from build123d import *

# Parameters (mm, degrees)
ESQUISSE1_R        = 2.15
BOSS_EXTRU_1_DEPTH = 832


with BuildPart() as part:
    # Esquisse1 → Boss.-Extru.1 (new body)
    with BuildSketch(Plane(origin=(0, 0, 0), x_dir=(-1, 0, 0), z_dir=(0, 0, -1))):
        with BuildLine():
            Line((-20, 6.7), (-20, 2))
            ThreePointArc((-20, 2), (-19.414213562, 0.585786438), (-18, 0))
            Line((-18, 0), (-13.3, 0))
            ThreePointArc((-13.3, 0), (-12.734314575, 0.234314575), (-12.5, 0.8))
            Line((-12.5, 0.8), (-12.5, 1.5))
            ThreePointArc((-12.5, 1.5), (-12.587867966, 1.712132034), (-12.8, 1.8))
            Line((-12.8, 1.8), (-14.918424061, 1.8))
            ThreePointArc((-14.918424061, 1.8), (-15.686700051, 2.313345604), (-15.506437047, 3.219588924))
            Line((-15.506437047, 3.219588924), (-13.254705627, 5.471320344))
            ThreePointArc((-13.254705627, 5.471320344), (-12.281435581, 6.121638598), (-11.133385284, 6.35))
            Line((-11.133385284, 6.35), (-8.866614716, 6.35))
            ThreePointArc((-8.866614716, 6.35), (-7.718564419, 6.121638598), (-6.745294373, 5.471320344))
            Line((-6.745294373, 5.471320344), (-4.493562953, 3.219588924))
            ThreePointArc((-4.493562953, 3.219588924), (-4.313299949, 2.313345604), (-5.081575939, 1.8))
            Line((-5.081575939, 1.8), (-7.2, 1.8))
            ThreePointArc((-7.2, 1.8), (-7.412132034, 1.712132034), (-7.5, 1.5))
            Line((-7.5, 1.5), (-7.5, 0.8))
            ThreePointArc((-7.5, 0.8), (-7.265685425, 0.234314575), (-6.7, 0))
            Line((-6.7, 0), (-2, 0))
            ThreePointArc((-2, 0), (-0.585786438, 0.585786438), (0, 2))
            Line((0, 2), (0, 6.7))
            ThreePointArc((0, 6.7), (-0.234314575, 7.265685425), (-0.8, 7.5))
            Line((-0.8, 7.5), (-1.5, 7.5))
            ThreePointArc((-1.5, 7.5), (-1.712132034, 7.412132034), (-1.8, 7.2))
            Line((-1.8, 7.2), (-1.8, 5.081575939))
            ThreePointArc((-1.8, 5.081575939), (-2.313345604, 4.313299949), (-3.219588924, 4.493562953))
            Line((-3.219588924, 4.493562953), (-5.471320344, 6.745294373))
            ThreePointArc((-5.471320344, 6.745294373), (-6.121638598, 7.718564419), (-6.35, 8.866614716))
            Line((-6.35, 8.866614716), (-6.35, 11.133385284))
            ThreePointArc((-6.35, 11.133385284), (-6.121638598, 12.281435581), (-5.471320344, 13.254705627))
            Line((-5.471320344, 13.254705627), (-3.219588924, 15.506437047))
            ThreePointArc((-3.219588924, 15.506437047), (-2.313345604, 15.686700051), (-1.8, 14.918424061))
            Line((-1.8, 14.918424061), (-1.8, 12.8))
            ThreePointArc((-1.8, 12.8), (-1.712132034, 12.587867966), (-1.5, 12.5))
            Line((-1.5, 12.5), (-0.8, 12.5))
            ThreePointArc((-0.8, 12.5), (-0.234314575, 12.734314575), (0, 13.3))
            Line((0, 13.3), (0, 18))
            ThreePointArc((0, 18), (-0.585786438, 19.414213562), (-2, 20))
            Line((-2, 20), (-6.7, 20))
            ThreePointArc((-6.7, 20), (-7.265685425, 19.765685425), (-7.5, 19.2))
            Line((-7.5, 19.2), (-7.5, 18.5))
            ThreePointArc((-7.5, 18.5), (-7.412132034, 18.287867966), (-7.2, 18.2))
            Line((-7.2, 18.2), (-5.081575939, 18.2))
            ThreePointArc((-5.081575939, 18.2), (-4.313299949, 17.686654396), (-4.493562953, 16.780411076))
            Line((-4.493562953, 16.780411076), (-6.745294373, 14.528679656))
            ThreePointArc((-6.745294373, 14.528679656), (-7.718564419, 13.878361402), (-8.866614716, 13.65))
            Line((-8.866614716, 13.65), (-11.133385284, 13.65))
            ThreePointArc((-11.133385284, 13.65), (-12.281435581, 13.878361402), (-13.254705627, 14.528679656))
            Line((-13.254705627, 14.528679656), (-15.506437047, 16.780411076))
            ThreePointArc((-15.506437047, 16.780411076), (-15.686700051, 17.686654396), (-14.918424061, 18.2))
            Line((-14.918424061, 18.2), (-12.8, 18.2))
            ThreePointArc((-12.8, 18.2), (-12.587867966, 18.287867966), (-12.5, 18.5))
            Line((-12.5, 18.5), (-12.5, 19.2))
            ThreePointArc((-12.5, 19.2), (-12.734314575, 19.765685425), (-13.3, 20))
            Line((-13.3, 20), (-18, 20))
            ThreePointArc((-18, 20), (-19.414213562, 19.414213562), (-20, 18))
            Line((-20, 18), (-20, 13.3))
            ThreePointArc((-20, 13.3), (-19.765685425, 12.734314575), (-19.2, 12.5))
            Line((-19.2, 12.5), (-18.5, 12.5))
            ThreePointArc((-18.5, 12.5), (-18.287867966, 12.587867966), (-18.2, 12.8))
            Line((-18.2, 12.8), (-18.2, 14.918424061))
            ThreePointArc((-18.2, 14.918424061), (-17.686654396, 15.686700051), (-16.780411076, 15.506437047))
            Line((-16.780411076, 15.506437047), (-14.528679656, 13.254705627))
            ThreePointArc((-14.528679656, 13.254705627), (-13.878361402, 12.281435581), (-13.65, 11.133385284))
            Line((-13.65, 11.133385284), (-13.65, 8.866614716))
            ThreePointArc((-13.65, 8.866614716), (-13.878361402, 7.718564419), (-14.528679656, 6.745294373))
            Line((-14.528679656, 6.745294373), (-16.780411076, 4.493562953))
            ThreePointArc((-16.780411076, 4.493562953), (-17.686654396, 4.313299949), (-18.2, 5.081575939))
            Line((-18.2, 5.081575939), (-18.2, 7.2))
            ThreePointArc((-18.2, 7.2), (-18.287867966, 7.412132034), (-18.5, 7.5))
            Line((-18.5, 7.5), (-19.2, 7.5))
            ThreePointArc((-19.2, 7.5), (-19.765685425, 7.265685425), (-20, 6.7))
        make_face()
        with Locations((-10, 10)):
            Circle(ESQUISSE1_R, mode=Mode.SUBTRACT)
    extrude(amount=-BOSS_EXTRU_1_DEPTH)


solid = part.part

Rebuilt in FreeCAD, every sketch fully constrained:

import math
import FreeCAD as App
import Part
import Sketcher

V = App.Vector
Q = App.Units.Quantity

doc = App.newDocument("Part")
body = doc.addObject("PartDesign::Body", "Body")

sketch1 = body.newObject("Sketcher::SketchObject", "Sketch")
sketch1.AttachmentSupport = (doc.getObject("XY_Plane"), [""])
sketch1.MapMode = "FlatFace"
sketch1.addGeometry(Part.LineSegment(V(20, 6.7, 0), V(20, 2, 0)), False)
sketch1.addGeometry(Part.ArcOfCircle(Part.Circle(V(18, 2, 0), V(0, 0, 1), 2), math.radians(-90), math.radians(0)), False)
sketch1.addGeometry(Part.LineSegment(V(18, 0, 0), V(13.3, 0, 0)), False)
sketch1.addGeometry(Part.ArcOfCircle(Part.Circle(V(13.3, 0.8, 0), V(0, 0, 1), 0.8), math.radians(180), math.radians(270)), False)
sketch1.addGeometry(Part.LineSegment(V(12.5, 0.8, 0), V(12.5, 1.5, 0)), False)
sketch1.addGeometry(Part.ArcOfCircle(Part.Circle(V(12.8, 1.5, 0), V(0, 0, 1), 0.3), math.radians(90), math.radians(180)), False)
sketch1.addGeometry(Part.LineSegment(V(12.8, 1.8, 0), V(14.92, 1.8, 0)), False)
sketch1.addGeometry(Part.ArcOfCircle(Part.Circle(V(14.92, 2.63, 0), V(0, 0, 1), 0.83), math.radians(-90), math.radians(45)), False)
sketch1.addGeometry(Part.LineSegment(V(15.51, 3.22, 0), V(13.25, 5.47, 0)), False)
sketch1.addGeometry(Part.ArcOfCircle(Part.Circle(V(11.13, 3.35, 0), V(0, 0, 1), 3), math.radians(45), math.radians(90)), False)
sketch1.addGeometry(Part.LineSegment(V(11.13, 6.35, 0), V(8.87, 6.35, 0)), False)
sketch1.addGeometry(Part.ArcOfCircle(Part.Circle(V(8.87, 3.35, 0), V(0, 0, 1), 3), math.radians(90), math.radians(135)), False)
sketch1.addGeometry(Part.LineSegment(V(6.75, 5.47, 0), V(4.49, 3.22, 0)), False)
sketch1.addGeometry(Part.ArcOfCircle(Part.Circle(V(5.08, 2.63, 0), V(0, 0, 1), 0.83), math.radians(135), math.radians(270)), False)
sketch1.addGeometry(Part.LineSegment(V(5.08, 1.8, 0), V(7.2, 1.8, 0)), False)
sketch1.addGeometry(Part.ArcOfCircle(Part.Circle(V(7.2, 1.5, 0), V(0, 0, 1), 0.3), math.radians(0), math.radians(90)), False)
sketch1.addGeometry(Part.LineSegment(V(7.5, 1.5, 0), V(7.5, 0.8, 0)), False)
sketch1.addGeometry(Part.ArcOfCircle(Part.Circle(V(6.7, 0.8, 0), V(0, 0, 1), 0.8), math.radians(-90), math.radians(0)), False)
sketch1.addGeometry(Part.LineSegment(V(6.7, 0, 0), V(2, 0, 0)), False)
sketch1.addGeometry(Part.ArcOfCircle(Part.Circle(V(2, 2, 0), V(0, 0, 1), 2), math.radians(-180), math.radians(-90)), False)
sketch1.addGeometry(Part.LineSegment(V(0, 2, 0), V(0, 6.7, 0)), False)
sketch1.addGeometry(Part.ArcOfCircle(Part.Circle(V(0.8, 6.7, 0), V(0, 0, 1), 0.8), math.radians(90), math.radians(180)), False)
sketch1.addGeometry(Part.LineSegment(V(0.8, 7.5, 0), V(1.5, 7.5, 0)), False)
sketch1.addGeometry(Part.ArcOfCircle(Part.Circle(V(1.5, 7.2, 0), V(0, 0, 1), 0.3), math.radians(0), math.radians(90)), False)
sketch1.addGeometry(Part.LineSegment(V(1.8, 7.2, 0), V(1.8, 5.08, 0)), False)
sketch1.addGeometry(Part.ArcOfCircle(Part.Circle(V(2.63, 5.08, 0), V(0, 0, 1), 0.83), math.radians(180), math.radians(315)), False)
sketch1.addGeometry(Part.LineSegment(V(3.22, 4.49, 0), V(5.47, 6.75, 0)), False)
sketch1.addGeometry(Part.ArcOfCircle(Part.Circle(V(3.35, 8.87, 0), V(0, 0, 1), 3), math.radians(-45), math.radians(0)), False)
sketch1.addGeometry(Part.LineSegment(V(6.35, 8.87, 0), V(6.35, 11.13, 0)), False)
sketch1.addGeometry(Part.ArcOfCircle(Part.Circle(V(3.35, 11.13, 0), V(0, 0, 1), 3), math.radians(0), math.radians(45)), False)
sketch1.addGeometry(Part.LineSegment(V(5.47, 13.25, 0), V(3.22, 15.51, 0)), False)
sketch1.addGeometry(Part.ArcOfCircle(Part.Circle(V(2.63, 14.92, 0), V(0, 0, 1), 0.83), math.radians(45), math.radians(180)), False)
sketch1.addGeometry(Part.LineSegment(V(1.8, 14.92, 0), V(1.8, 12.8, 0)), False)
sketch1.addGeometry(Part.ArcOfCircle(Part.Circle(V(1.5, 12.8, 0), V(0, 0, 1), 0.3), math.radians(-90), math.radians(0)), False)
sketch1.addGeometry(Part.LineSegment(V(1.5, 12.5, 0), V(0.8, 12.5, 0)), False)
sketch1.addGeometry(Part.ArcOfCircle(Part.Circle(V(0.8, 13.3, 0), V(0, 0, 1), 0.8), math.radians(180), math.radians(270)), False)
sketch1.addGeometry(Part.LineSegment(V(0, 13.3, 0), V(0, 18, 0)), False)
sketch1.addGeometry(Part.ArcOfCircle(Part.Circle(V(2, 18, 0), V(0, 0, 1), 2), math.radians(90), math.radians(180)), False)
sketch1.addGeometry(Part.LineSegment(V(2, 20, 0), V(6.7, 20, 0)), False)
sketch1.addGeometry(Part.ArcOfCircle(Part.Circle(V(6.7, 19.2, 0), V(0, 0, 1), 0.8), math.radians(0), math.radians(90)), False)
sketch1.addGeometry(Part.LineSegment(V(7.5, 19.2, 0), V(7.5, 18.5, 0)), False)
sketch1.addGeometry(Part.ArcOfCircle(Part.Circle(V(7.2, 18.5, 0), V(0, 0, 1), 0.3), math.radians(-90), math.radians(0)), False)
sketch1.addGeometry(Part.LineSegment(V(7.2, 18.2, 0), V(5.08, 18.2, 0)), False)
sketch1.addGeometry(Part.ArcOfCircle(Part.Circle(V(5.08, 17.37, 0), V(0, 0, 1), 0.83), math.radians(90), math.radians(225)), False)
sketch1.addGeometry(Part.LineSegment(V(4.49, 16.78, 0), V(6.75, 14.53, 0)), False)
sketch1.addGeometry(Part.ArcOfCircle(Part.Circle(V(8.87, 16.65, 0), V(0, 0, 1), 3), math.radians(-135), math.radians(-90)), False)
sketch1.addGeometry(Part.LineSegment(V(8.87, 13.65, 0), V(11.13, 13.65, 0)), False)
sketch1.addGeometry(Part.ArcOfCircle(Part.Circle(V(11.13, 16.65, 0), V(0, 0, 1), 3), math.radians(-90), math.radians(-45)), False)
sketch1.addGeometry(Part.LineSegment(V(13.25, 14.53, 0), V(15.51, 16.78, 0)), False)
sketch1.addGeometry(Part.ArcOfCircle(Part.Circle(V(14.92, 17.37, 0), V(0, 0, 1), 0.83), math.radians(-45), math.radians(90)), False)
sketch1.addGeometry(Part.LineSegment(V(14.92, 18.2, 0), V(12.8, 18.2, 0)), False)
sketch1.addGeometry(Part.ArcOfCircle(Part.Circle(V(12.8, 18.5, 0), V(0, 0, 1), 0.3), math.radians(-180), math.radians(-90)), False)
sketch1.addGeometry(Part.LineSegment(V(12.5, 18.5, 0), V(12.5, 19.2, 0)), False)
sketch1.addGeometry(Part.ArcOfCircle(Part.Circle(V(13.3, 19.2, 0), V(0, 0, 1), 0.8), math.radians(90), math.radians(180)), False)
sketch1.addGeometry(Part.LineSegment(V(13.3, 20, 0), V(18, 20, 0)), False)
sketch1.addGeometry(Part.ArcOfCircle(Part.Circle(V(18, 18, 0), V(0, 0, 1), 2), math.radians(0), math.radians(90)), False)
sketch1.addGeometry(Part.LineSegment(V(20, 18, 0), V(20, 13.3, 0)), False)
sketch1.addGeometry(Part.ArcOfCircle(Part.Circle(V(19.2, 13.3, 0), V(0, 0, 1), 0.8), math.radians(-90), math.radians(0)), False)
sketch1.addGeometry(Part.LineSegment(V(19.2, 12.5, 0), V(18.5, 12.5, 0)), False)
sketch1.addGeometry(Part.ArcOfCircle(Part.Circle(V(18.5, 12.8, 0), V(0, 0, 1), 0.3), math.radians(-180), math.radians(-90)), False)
sketch1.addGeometry(Part.LineSegment(V(18.2, 12.8, 0), V(18.2, 14.92, 0)), False)
sketch1.addGeometry(Part.ArcOfCircle(Part.Circle(V(17.37, 14.92, 0), V(0, 0, 1), 0.83), math.radians(0), math.radians(135)), False)
sketch1.addGeometry(Part.LineSegment(V(16.78, 15.51, 0), V(14.53, 13.25, 0)), False)
sketch1.addGeometry(Part.ArcOfCircle(Part.Circle(V(16.65, 11.13, 0), V(0, 0, 1), 3), math.radians(135), math.radians(180)), False)
sketch1.addGeometry(Part.LineSegment(V(13.65, 11.13, 0), V(13.65, 8.87, 0)), False)
sketch1.addGeometry(Part.ArcOfCircle(Part.Circle(V(16.65, 8.87, 0), V(0, 0, 1), 3), math.radians(180), math.radians(225)), False)
sketch1.addGeometry(Part.LineSegment(V(14.53, 6.75, 0), V(16.78, 4.49, 0)), False)
sketch1.addGeometry(Part.ArcOfCircle(Part.Circle(V(17.37, 5.08, 0), V(0, 0, 1), 0.83), math.radians(-135), math.radians(0)), False)
sketch1.addGeometry(Part.LineSegment(V(18.2, 5.08, 0), V(18.2, 7.2, 0)), False)
sketch1.addGeometry(Part.ArcOfCircle(Part.Circle(V(18.5, 7.2, 0), V(0, 0, 1), 0.3), math.radians(90), math.radians(180)), False)
sketch1.addGeometry(Part.LineSegment(V(18.5, 7.5, 0), V(19.2, 7.5, 0)), False)
sketch1.addGeometry(Part.ArcOfCircle(Part.Circle(V(19.2, 6.7, 0), V(0, 0, 1), 0.8), math.radians(0), math.radians(90)), False)
sketch1.addGeometry(Part.Circle(V(10, 10, 0), V(0, 0, 1), 2.15), False)
sketch1.addConstraint(Sketcher.Constraint("Tangent", 0, 2, 1, 2))
sketch1.addConstraint(Sketcher.Constraint("Tangent", 1, 1, 2, 1))
sketch1.addConstraint(Sketcher.Constraint("Tangent", 2, 2, 3, 2))
sketch1.addConstraint(Sketcher.Constraint("Tangent", 3, 1, 4, 1))
sketch1.addConstraint(Sketcher.Constraint("Tangent", 4, 2, 5, 2))
sketch1.addConstraint(Sketcher.Constraint("Tangent", 5, 1, 6, 1))
sketch1.addConstraint(Sketcher.Constraint("Tangent", 6, 2, 7, 1))
sketch1.addConstraint(Sketcher.Constraint("Tangent", 7, 2, 8, 1))
sketch1.addConstraint(Sketcher.Constraint("Tangent", 8, 2, 9, 1))
sketch1.addConstraint(Sketcher.Constraint("Tangent", 9, 2, 10, 1))
sketch1.addConstraint(Sketcher.Constraint("Tangent", 10, 2, 11, 1))
sketch1.addConstraint(Sketcher.Constraint("Tangent", 11, 2, 12, 1))
sketch1.addConstraint(Sketcher.Constraint("Tangent", 12, 2, 13, 1))
sketch1.addConstraint(Sketcher.Constraint("Tangent", 13, 2, 14, 1))
sketch1.addConstraint(Sketcher.Constraint("Tangent", 14, 2, 15, 2))
sketch1.addConstraint(Sketcher.Constraint("Tangent", 15, 1, 16, 1))
sketch1.addConstraint(Sketcher.Constraint("Tangent", 16, 2, 17, 2))
sketch1.addConstraint(Sketcher.Constraint("Tangent", 17, 1, 18, 1))
sketch1.addConstraint(Sketcher.Constraint("Tangent", 18, 2, 19, 2))
sketch1.addConstraint(Sketcher.Constraint("Tangent", 19, 1, 20, 1))
sketch1.addConstraint(Sketcher.Constraint("Tangent", 20, 2, 21, 2))
sketch1.addConstraint(Sketcher.Constraint("Tangent", 21, 1, 22, 1))
sketch1.addConstraint(Sketcher.Constraint("Tangent", 22, 2, 23, 2))
sketch1.addConstraint(Sketcher.Constraint("Tangent", 23, 1, 24, 1))
sketch1.addConstraint(Sketcher.Constraint("Tangent", 24, 2, 25, 1))
sketch1.addConstraint(Sketcher.Constraint("Tangent", 25, 2, 26, 1))
sketch1.addConstraint(Sketcher.Constraint("Tangent", 26, 2, 27, 1))
sketch1.addConstraint(Sketcher.Constraint("Tangent", 27, 2, 28, 1))
sketch1.addConstraint(Sketcher.Constraint("Tangent", 28, 2, 29, 1))
sketch1.addConstraint(Sketcher.Constraint("Tangent", 29, 2, 30, 1))
sketch1.addConstraint(Sketcher.Constraint("Tangent", 30, 2, 31, 1))
sketch1.addConstraint(Sketcher.Constraint("Tangent", 31, 2, 32, 1))
sketch1.addConstraint(Sketcher.Constraint("Tangent", 32, 2, 33, 2))
sketch1.addConstraint(Sketcher.Constraint("Tangent", 33, 1, 34, 1))
sketch1.addConstraint(Sketcher.Constraint("Tangent", 34, 2, 35, 2))
sketch1.addConstraint(Sketcher.Constraint("Tangent", 35, 1, 36, 1))
sketch1.addConstraint(Sketcher.Constraint("Tangent", 36, 2, 37, 2))
sketch1.addConstraint(Sketcher.Constraint("Tangent", 37, 1, 38, 1))
sketch1.addConstraint(Sketcher.Constraint("Tangent", 38, 2, 39, 2))
sketch1.addConstraint(Sketcher.Constraint("Tangent", 39, 1, 40, 1))
sketch1.addConstraint(Sketcher.Constraint("Tangent", 40, 2, 41, 2))
sketch1.addConstraint(Sketcher.Constraint("Tangent", 41, 1, 42, 1))
sketch1.addConstraint(Sketcher.Constraint("Tangent", 42, 2, 43, 1))
sketch1.addConstraint(Sketcher.Constraint("Tangent", 43, 2, 44, 1))
sketch1.addConstraint(Sketcher.Constraint("Tangent", 44, 2, 45, 1))
sketch1.addConstraint(Sketcher.Constraint("Tangent", 45, 2, 46, 1))
sketch1.addConstraint(Sketcher.Constraint("Tangent", 46, 2, 47, 1))
sketch1.addConstraint(Sketcher.Constraint("Tangent", 47, 2, 48, 1))
sketch1.addConstraint(Sketcher.Constraint("Tangent", 48, 2, 49, 1))
sketch1.addConstraint(Sketcher.Constraint("Tangent", 49, 2, 50, 1))
sketch1.addConstraint(Sketcher.Constraint("Tangent", 50, 2, 51, 2))
sketch1.addConstraint(Sketcher.Constraint("Tangent", 51, 1, 52, 1))
sketch1.addConstraint(Sketcher.Constraint("Tangent", 52, 2, 53, 2))
sketch1.addConstraint(Sketcher.Constraint("Tangent", 53, 1, 54, 1))
sketch1.addConstraint(Sketcher.Constraint("Tangent", 54, 2, 55, 2))
sketch1.addConstraint(Sketcher.Constraint("Tangent", 55, 1, 56, 1))
sketch1.addConstraint(Sketcher.Constraint("Tangent", 56, 2, 57, 2))
sketch1.addConstraint(Sketcher.Constraint("Tangent", 57, 1, 58, 1))
sketch1.addConstraint(Sketcher.Constraint("Tangent", 58, 2, 59, 2))
sketch1.addConstraint(Sketcher.Constraint("Tangent", 59, 1, 60, 1))
sketch1.addConstraint(Sketcher.Constraint("Tangent", 60, 2, 61, 1))
sketch1.addConstraint(Sketcher.Constraint("Tangent", 61, 2, 62, 1))
sketch1.addConstraint(Sketcher.Constraint("Tangent", 62, 2, 63, 1))
sketch1.addConstraint(Sketcher.Constraint("Tangent", 63, 2, 64, 1))
sketch1.addConstraint(Sketcher.Constraint("Tangent", 64, 2, 65, 1))
sketch1.addConstraint(Sketcher.Constraint("Tangent", 65, 2, 66, 1))
sketch1.addConstraint(Sketcher.Constraint("Tangent", 66, 2, 67, 1))
sketch1.addConstraint(Sketcher.Constraint("Tangent", 67, 2, 68, 1))
sketch1.addConstraint(Sketcher.Constraint("Tangent", 68, 2, 69, 2))
sketch1.addConstraint(Sketcher.Constraint("Tangent", 69, 1, 70, 1))
sketch1.addConstraint(Sketcher.Constraint("Tangent", 70, 2, 71, 2))
sketch1.addConstraint(Sketcher.Constraint("Tangent", 71, 1, 0, 1))
sketch1.addConstraint(Sketcher.Constraint("Vertical", 0))
sketch1.addConstraint(Sketcher.Constraint("Horizontal", 2))
sketch1.addConstraint(Sketcher.Constraint("Vertical", 4))
sketch1.addConstraint(Sketcher.Constraint("Horizontal", 6))
sketch1.addConstraint(Sketcher.Constraint("Horizontal", 10))
sketch1.addConstraint(Sketcher.Constraint("Horizontal", 14))
sketch1.addConstraint(Sketcher.Constraint("Vertical", 16))
sketch1.addConstraint(Sketcher.Constraint("Horizontal", 18))
sketch1.addConstraint(Sketcher.Constraint("Vertical", 20))
sketch1.addConstraint(Sketcher.Constraint("Horizontal", 22))
sketch1.addConstraint(Sketcher.Constraint("Vertical", 24))
sketch1.addConstraint(Sketcher.Constraint("Vertical", 28))
sketch1.addConstraint(Sketcher.Constraint("Vertical", 32))
sketch1.addConstraint(Sketcher.Constraint("Horizontal", 34))
sketch1.addConstraint(Sketcher.Constraint("Vertical", 36))
sketch1.addConstraint(Sketcher.Constraint("Horizontal", 38))
sketch1.addConstraint(Sketcher.Constraint("Vertical", 40))
sketch1.addConstraint(Sketcher.Constraint("Horizontal", 42))
sketch1.addConstraint(Sketcher.Constraint("Horizontal", 46))
sketch1.addConstraint(Sketcher.Constraint("Horizontal", 50))
sketch1.addConstraint(Sketcher.Constraint("Vertical", 52))
sketch1.addConstraint(Sketcher.Constraint("Horizontal", 54))
sketch1.addConstraint(Sketcher.Constraint("Vertical", 56))
sketch1.addConstraint(Sketcher.Constraint("Horizontal", 58))
sketch1.addConstraint(Sketcher.Constraint("Vertical", 60))
sketch1.addConstraint(Sketcher.Constraint("Vertical", 64))
sketch1.addConstraint(Sketcher.Constraint("Vertical", 68))
sketch1.addConstraint(Sketcher.Constraint("Horizontal", 70))
sketch1.addConstraint(Sketcher.Constraint("Equal", 9, 11))
sketch1.addConstraint(Sketcher.Constraint("Equal", 7, 13))
sketch1.addConstraint(Sketcher.Constraint("Equal", 5, 15))
sketch1.addConstraint(Sketcher.Constraint("Equal", 3, 17))
sketch1.addConstraint(Sketcher.Constraint("Equal", 1, 19))
sketch1.addConstraint(Sketcher.Constraint("Equal", 17, 21))
sketch1.addConstraint(Sketcher.Constraint("Equal", 15, 23))
sketch1.addConstraint(Sketcher.Constraint("Equal", 13, 25))
sketch1.addConstraint(Sketcher.Constraint("Equal", 11, 27))
sketch1.addConstraint(Sketcher.Constraint("Equal", 27, 29))
sketch1.addConstraint(Sketcher.Constraint("Equal", 25, 31))
sketch1.addConstraint(Sketcher.Constraint("Equal", 23, 33))
sketch1.addConstraint(Sketcher.Constraint("Equal", 21, 35))
sketch1.addConstraint(Sketcher.Constraint("Equal", 19, 37))
sketch1.addConstraint(Sketcher.Constraint("Equal", 35, 39))
sketch1.addConstraint(Sketcher.Constraint("Equal", 33, 41))
sketch1.addConstraint(Sketcher.Constraint("Equal", 31, 43))
sketch1.addConstraint(Sketcher.Constraint("Equal", 29, 45))
sketch1.addConstraint(Sketcher.Constraint("Equal", 45, 47))
sketch1.addConstraint(Sketcher.Constraint("Equal", 43, 49))
sketch1.addConstraint(Sketcher.Constraint("Equal", 41, 51))
sketch1.addConstraint(Sketcher.Constraint("Equal", 39, 53))
sketch1.addConstraint(Sketcher.Constraint("Equal", 37, 55))
sketch1.addConstraint(Sketcher.Constraint("Equal", 53, 57))
sketch1.addConstraint(Sketcher.Constraint("Equal", 51, 59))
sketch1.addConstraint(Sketcher.Constraint("Equal", 49, 61))
sketch1.addConstraint(Sketcher.Constraint("Equal", 47, 63))
sketch1.addConstraint(Sketcher.Constraint("Equal", 63, 65))
sketch1.addConstraint(Sketcher.Constraint("Equal", 61, 67))
sketch1.addConstraint(Sketcher.Constraint("Equal", 59, 69))
sketch1.addConstraint(Sketcher.Constraint("Equal", 57, 71))
sketch1.addConstraint(Sketcher.Constraint("PointOnObject", 1, 1, -1))
sketch1.addConstraint(Sketcher.Constraint("PointOnObject", 17, 1, -1))
sketch1.addConstraint(Sketcher.Constraint("PointOnObject", 19, 1, -2))
sketch1.addConstraint(Sketcher.Constraint("PointOnObject", 35, 1, -2))
sketch1.addConstraint(Sketcher.Constraint("Perpendicular", 8, 12))
sketch1.addConstraint(Sketcher.Constraint("Parallel", 12, 26))
sketch1.addConstraint(Sketcher.Constraint("Perpendicular", 26, 30))
sketch1.addConstraint(Sketcher.Constraint("Parallel", 30, 44))
sketch1.addConstraint(Sketcher.Constraint("Perpendicular", 44, 48))
sketch1.addConstraint(Sketcher.Constraint("Parallel", 48, 62))
sketch1.addConstraint(Sketcher.Constraint("Perpendicular", 62, 66))
sketch1.addConstraint(Sketcher.Constraint("Horizontal", 7, 3, 13, 3))
sketch1.addConstraint(Sketcher.Constraint("Horizontal", 43, 3, 49, 3))
sketch1.addConstraint(Sketcher.Constraint("Horizontal", 39, 3, 53, 3))
sketch1.addConstraint(Sketcher.Constraint("Horizontal", 35, 3, 57, 3))
sketch1.addConstraint(Sketcher.Constraint("Horizontal", 31, 3, 61, 3))
sketch1.addConstraint(Sketcher.Constraint("Horizontal", 29, 3, 63, 3))
sketch1.addConstraint(Sketcher.Constraint("Horizontal", 27, 3, 65, 3))
sketch1.addConstraint(Sketcher.Constraint("Horizontal", 25, 3, 67, 3))
sketch1.addConstraint(Sketcher.Constraint("Horizontal", 23, 3, 69, 3))
sketch1.addConstraint(Sketcher.Constraint("Horizontal", 8, 2, 11, 2))
sketch1.addConstraint(Sketcher.Constraint("Vertical", 25, 3, 31, 3))
sketch1.addConstraint(Sketcher.Constraint("Vertical", 17, 3, 39, 3))
sketch1.addConstraint(Sketcher.Constraint("Vertical", 13, 3, 43, 3))
sketch1.addConstraint(Sketcher.Constraint("Vertical", 11, 3, 45, 3))
sketch1.addConstraint(Sketcher.Constraint("Vertical", 9, 3, 47, 3))
sketch1.addConstraint(Sketcher.Constraint("Vertical", 5, 3, 51, 3))
sketch1.addConstraint(Sketcher.Constraint("Vertical", 1, 3, 55, 3))
sketch1.addConstraint(Sketcher.Constraint("Equal", 6, 14))
sketch1.addConstraint(Sketcher.Constraint("Equal", 2, 18))
sketch1.addConstraint(Sketcher.Constraint("Equal", 34, 58))
sketch1.addConstraint(Sketcher.Constraint("Equal", 54, 0))
sketch1.addConstraint(Sketcher.Constraint("Equal", 70, 4))
sketch1.addConstraint(Sketcher.Constraint("Equal", 50, 24))
sketch1.addConstraint(Sketcher.Constraint("Equal", 46, 28))
sketch1.addConstraint(Sketcher.Constraint("Equal", 24, 32))
sketch1.addConstraint(Sketcher.Constraint("Equal", 20, 36))
sketch1.addConstraint(Sketcher.Constraint("Equal", 16, 40))
sketch1.addConstraint(Sketcher.Constraint("Equal", 12, 26))
sketch1.addConstraint(Sketcher.Constraint("Radius", 1, Q("2 mm")))
sketch1.addConstraint(Sketcher.Constraint("Radius", 9, Q("3 mm")))
sketch1.addConstraint(Sketcher.Constraint("Diameter", 72, Q("4.3 mm")))
sketch1.addConstraint(Sketcher.Constraint("Radius", 3, Q("0.8 mm")))
sketch1.addConstraint(Sketcher.Constraint("Radius", 5, Q("0.3 mm")))
sketch1.addConstraint(Sketcher.Constraint("DistanceX", 2, 2, 2, 1, Q("4.7 mm")))
sketch1.addConstraint(Sketcher.Constraint("DistanceX", 22, 1, 22, 2, Q("0.7 mm")))
sketch1.addConstraint(Sketcher.Constraint("DistanceX", -1, 1, 1, 3, Q("18 mm")))
sketch1.addConstraint(Sketcher.Constraint("DistanceX", -1, 1, 72, 3, Q("10 mm")))
sketch1.addConstraint(Sketcher.Constraint("DistanceY", -1, 1, 72, 3, Q("10 mm")))
sketch1.addConstraint(Sketcher.Constraint("DistanceY", -1, 1, 9, 3, Q("3.35 mm")))
sketch1.addConstraint(Sketcher.Constraint("Radius", 7, Q("0.831576 mm")))
sketch1.addConstraint(Sketcher.Constraint("DistanceX", 10, 2, 10, 1, Q("2.266771 mm")))
pad1 = body.newObject("PartDesign::Pad", "Pad")
pad1.Profile = sketch1
pad1.Length = 832

doc.recompute()
